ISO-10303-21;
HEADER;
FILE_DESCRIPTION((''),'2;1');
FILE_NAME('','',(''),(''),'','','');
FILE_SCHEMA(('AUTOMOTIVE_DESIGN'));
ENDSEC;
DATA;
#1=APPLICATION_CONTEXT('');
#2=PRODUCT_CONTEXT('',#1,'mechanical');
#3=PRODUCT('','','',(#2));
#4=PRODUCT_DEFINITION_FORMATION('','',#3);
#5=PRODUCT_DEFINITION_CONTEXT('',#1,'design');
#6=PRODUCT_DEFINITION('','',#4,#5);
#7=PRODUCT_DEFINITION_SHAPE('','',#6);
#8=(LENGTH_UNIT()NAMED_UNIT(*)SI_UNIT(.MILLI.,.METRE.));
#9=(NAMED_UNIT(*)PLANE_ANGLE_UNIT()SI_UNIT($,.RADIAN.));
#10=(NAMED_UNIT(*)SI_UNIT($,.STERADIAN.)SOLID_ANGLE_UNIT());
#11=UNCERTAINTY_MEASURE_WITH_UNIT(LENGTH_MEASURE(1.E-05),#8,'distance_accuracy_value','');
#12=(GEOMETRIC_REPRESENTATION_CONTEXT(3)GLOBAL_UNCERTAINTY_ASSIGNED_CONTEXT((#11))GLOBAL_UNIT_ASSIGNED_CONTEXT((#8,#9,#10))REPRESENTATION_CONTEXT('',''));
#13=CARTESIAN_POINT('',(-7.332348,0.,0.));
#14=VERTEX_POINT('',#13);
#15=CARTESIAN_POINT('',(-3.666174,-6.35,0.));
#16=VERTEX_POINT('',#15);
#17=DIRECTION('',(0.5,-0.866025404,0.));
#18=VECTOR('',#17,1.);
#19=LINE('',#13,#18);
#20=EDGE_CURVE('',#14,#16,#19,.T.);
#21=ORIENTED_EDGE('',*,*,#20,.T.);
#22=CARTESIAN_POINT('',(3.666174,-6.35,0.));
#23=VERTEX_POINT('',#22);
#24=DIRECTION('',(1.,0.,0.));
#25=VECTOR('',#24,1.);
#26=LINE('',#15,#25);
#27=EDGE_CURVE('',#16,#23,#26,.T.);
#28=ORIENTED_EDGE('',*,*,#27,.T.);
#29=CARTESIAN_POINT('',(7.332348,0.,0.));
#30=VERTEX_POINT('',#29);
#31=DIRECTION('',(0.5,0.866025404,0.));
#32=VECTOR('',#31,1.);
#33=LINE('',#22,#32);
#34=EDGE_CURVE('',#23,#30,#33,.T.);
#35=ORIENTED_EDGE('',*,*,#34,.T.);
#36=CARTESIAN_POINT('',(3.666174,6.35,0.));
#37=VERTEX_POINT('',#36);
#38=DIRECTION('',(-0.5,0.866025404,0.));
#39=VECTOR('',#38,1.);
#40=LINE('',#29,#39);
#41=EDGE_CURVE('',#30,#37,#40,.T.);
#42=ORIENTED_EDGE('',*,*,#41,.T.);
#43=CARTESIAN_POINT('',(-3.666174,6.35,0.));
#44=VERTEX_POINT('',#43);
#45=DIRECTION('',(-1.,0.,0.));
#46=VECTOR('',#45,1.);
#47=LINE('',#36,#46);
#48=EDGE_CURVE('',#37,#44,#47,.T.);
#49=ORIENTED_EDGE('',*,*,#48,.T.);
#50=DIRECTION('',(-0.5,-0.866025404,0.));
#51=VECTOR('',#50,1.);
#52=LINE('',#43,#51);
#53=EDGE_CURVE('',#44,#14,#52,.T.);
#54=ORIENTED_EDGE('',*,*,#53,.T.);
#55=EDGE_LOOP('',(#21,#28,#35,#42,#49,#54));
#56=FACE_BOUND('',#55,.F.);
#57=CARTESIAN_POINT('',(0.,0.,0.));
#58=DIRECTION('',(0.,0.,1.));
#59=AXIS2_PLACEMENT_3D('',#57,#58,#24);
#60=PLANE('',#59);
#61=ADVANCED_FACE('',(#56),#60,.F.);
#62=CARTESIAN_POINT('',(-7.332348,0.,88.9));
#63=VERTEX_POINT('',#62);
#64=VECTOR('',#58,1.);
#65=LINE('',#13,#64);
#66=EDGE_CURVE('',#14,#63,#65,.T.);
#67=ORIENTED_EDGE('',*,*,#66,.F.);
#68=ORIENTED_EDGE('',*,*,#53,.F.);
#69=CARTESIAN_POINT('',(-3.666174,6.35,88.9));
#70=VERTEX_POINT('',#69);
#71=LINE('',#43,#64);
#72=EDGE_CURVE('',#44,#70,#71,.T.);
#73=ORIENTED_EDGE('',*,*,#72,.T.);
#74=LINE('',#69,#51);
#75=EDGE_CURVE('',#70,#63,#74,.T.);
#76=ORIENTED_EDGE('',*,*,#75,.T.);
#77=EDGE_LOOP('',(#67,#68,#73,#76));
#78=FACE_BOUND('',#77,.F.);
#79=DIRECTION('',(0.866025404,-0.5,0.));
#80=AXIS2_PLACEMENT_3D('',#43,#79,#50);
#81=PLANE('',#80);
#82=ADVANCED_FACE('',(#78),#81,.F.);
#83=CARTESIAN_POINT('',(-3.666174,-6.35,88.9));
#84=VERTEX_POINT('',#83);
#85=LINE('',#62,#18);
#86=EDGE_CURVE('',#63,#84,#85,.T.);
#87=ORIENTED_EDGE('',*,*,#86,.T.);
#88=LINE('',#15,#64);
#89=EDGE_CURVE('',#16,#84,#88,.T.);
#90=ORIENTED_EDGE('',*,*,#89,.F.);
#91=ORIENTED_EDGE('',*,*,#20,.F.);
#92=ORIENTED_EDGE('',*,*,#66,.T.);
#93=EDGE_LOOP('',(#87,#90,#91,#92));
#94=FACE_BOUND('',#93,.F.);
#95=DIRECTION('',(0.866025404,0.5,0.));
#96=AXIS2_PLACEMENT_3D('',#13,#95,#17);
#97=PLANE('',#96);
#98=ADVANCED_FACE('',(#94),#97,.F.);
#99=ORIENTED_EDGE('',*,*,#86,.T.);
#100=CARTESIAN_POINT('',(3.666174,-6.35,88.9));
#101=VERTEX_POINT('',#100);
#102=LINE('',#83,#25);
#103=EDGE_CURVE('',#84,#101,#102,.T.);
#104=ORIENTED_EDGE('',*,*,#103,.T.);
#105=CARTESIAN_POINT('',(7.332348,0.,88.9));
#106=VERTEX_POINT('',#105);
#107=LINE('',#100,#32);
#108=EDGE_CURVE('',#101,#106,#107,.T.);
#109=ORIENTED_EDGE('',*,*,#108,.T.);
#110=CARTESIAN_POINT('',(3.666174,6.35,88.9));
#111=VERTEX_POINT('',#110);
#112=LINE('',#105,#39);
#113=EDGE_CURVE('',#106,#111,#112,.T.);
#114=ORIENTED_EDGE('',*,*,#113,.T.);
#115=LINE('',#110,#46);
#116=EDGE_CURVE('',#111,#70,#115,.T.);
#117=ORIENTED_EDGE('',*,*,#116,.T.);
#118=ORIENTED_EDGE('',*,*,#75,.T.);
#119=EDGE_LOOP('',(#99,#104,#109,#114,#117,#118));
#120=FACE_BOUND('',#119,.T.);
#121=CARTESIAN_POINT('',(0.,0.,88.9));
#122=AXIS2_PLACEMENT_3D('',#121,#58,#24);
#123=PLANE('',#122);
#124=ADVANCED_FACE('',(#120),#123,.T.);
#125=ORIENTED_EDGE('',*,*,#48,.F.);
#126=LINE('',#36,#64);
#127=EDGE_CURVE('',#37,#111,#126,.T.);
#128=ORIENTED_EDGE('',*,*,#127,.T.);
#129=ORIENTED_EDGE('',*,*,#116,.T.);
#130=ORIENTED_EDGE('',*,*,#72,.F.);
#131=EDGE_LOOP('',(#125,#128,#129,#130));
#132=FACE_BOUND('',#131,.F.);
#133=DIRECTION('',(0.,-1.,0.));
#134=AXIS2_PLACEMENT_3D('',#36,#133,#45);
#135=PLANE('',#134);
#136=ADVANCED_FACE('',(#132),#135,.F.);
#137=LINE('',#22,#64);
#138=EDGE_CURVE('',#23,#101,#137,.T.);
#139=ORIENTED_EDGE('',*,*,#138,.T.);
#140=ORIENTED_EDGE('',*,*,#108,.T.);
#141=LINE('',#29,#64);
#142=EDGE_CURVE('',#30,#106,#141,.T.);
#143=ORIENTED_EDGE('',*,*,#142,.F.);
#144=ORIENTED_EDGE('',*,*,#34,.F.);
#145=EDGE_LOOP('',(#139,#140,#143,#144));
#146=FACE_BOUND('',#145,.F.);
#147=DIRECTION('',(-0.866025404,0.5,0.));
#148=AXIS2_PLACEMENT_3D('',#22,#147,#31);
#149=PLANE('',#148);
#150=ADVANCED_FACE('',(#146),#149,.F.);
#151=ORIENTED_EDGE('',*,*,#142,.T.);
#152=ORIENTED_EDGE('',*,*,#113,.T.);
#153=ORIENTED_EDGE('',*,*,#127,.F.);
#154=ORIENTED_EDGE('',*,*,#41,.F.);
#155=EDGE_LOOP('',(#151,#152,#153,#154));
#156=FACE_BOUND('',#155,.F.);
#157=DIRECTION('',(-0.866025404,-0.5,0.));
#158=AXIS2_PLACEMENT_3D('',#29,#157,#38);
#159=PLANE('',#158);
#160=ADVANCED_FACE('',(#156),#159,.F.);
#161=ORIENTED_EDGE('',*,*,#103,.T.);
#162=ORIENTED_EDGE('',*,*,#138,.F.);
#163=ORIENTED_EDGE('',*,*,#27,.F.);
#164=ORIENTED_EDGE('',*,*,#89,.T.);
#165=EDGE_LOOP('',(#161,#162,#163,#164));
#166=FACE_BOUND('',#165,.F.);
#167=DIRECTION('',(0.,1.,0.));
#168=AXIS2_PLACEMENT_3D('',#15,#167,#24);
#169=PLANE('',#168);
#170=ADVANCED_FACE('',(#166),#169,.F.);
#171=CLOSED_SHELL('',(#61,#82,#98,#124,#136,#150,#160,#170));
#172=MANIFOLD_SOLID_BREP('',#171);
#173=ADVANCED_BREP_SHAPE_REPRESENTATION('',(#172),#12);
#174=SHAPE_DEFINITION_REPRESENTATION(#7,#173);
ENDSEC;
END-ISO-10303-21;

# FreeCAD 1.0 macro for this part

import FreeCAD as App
import Part
import Sketcher
from FreeCAD import Vector
Q = App.Units.Quantity

doc = App.newDocument("Part")
body = doc.addObject("PartDesign::Body", "Body")

sketch1 = body.newObject("Sketcher::SketchObject", "Sketch")
sketch1.AttachmentSupport = (doc.getObject("XY_Plane"), [""])
sketch1.MapMode = "FlatFace"
sketch1.addGeometry(Part.LineSegment(Vector(7.332348, 0, 0), Vector(3.666174, 6.35, 0)), False)
sketch1.addGeometry(Part.LineSegment(Vector(3.666174, 6.35, 0), Vector(-3.666174, 6.35, 0)), False)
sketch1.addGeometry(Part.LineSegment(Vector(-3.666174, 6.35, 0), Vector(-7.332348, 0, 0)), False)
sketch1.addGeometry(Part.LineSegment(Vector(-7.332348, 0, 0), Vector(-3.666174, -6.35, 0)), False)
sketch1.addGeometry(Part.LineSegment(Vector(-3.666174, -6.35, 0), Vector(3.666174, -6.35, 0)), False)
sketch1.addGeometry(Part.LineSegment(Vector(3.666174, -6.35, 0), Vector(7.332348, 0, 0)), False)
sketch1.addConstraint(Sketcher.Constraint("Coincident", 0, 2, 1, 1))
sketch1.addConstraint(Sketcher.Constraint("Coincident", 1, 2, 2, 1))
sketch1.addConstraint(Sketcher.Constraint("Coincident", 2, 2, 3, 1))
sketch1.addConstraint(Sketcher.Constraint("Coincident", 3, 2, 4, 1))
sketch1.addConstraint(Sketcher.Constraint("Coincident", 4, 2, 5, 1))
sketch1.addConstraint(Sketcher.Constraint("Coincident", 5, 2, 0, 1))
sketch1.addConstraint(Sketcher.Constraint("Horizontal", 1))
sketch1.addConstraint(Sketcher.Constraint("Horizontal", 4))
sketch1.addConstraint(Sketcher.Constraint("Symmetric", 0, 2, 3, 2, -1, 1))
sketch1.addConstraint(Sketcher.Constraint("Symmetric", 2, 2, 5, 2, -1, 1))
sketch1.addConstraint(Sketcher.Constraint("PointOnObject", 2, 2, -1))
sketch1.addConstraint(Sketcher.Constraint("Parallel", 2, 5))
sketch1.addConstraint(Sketcher.Constraint("Vertical", 1, 2, 3, 2))
sketch1.addConstraint(Sketcher.Constraint("Angle", 0, Q("120 deg")))
sketch1.addConstraint(Sketcher.Constraint("DistanceY", 3, 2, 1, 2, Q("0.5 in")))
sketch1.addConstraint(Sketcher.Constraint("DistanceX", 1, 2, 1, 1, Q("7.332348 mm")))
pad1 = body.newObject("PartDesign::Pad", "Pad")
pad1.Profile = sketch1
pad1.Length = Q("3.5 in")

doc.recompute()
